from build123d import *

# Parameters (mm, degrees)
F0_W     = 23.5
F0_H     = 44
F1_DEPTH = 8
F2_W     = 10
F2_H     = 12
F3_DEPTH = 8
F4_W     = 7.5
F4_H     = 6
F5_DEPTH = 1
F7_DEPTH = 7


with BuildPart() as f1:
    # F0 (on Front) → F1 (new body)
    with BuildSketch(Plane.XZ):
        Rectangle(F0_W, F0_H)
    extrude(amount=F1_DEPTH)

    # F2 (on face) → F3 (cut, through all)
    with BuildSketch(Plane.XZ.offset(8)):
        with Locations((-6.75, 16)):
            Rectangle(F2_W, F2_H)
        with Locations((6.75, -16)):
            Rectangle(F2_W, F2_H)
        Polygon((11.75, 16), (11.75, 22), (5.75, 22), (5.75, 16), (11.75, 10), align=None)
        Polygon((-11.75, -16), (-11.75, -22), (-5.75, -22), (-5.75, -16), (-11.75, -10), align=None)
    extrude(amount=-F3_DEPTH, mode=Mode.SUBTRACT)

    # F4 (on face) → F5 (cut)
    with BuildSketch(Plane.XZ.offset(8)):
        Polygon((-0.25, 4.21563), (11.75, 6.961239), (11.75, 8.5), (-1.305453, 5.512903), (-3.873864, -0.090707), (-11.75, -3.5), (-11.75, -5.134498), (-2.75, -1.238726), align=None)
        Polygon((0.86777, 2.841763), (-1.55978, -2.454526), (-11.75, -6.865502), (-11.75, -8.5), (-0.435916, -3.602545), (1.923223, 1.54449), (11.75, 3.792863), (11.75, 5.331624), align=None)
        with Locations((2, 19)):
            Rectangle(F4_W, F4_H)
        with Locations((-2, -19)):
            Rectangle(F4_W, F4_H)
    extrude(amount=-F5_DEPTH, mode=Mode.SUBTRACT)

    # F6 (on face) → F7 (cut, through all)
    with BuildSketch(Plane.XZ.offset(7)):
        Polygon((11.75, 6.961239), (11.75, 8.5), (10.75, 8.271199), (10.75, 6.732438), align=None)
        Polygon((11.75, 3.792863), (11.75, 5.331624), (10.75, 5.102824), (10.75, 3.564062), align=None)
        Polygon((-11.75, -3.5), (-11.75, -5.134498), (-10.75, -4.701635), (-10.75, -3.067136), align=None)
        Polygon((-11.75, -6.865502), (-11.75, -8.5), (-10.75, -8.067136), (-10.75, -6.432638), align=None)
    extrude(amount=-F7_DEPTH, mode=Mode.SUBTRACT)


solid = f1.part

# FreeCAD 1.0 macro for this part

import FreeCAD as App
import Part
import Sketcher
Q = App.Units.Quantity


def add_polygon(sketch, points):
    """Adds a closed chain of lines whose ends are joined by coincident constraints."""
    first, n = sketch.GeometryCount, len(points)
    for a, b in zip(points, points[1:] + points[:1]):
        sketch.addGeometry(Part.LineSegment(App.Vector(*a, 0), App.Vector(*b, 0)), False)
    for i in range(n):
        sketch.addConstraint(Sketcher.Constraint("Coincident", first + i, 2, first + (i + 1) % n, 1))

doc = App.newDocument("Part")
body = doc.addObject("PartDesign::Body", "Body")

sketch1 = body.newObject("Sketcher::SketchObject", "Sketch")
sketch1.AttachmentSupport = (doc.getObject("XZ_Plane"), [""])
sketch1.MapMode = "FlatFace"
add_polygon(sketch1, [(-12, 22), (-12, -22), (12, -22), (12, 22)])
sketch1.addConstraint([
    Sketcher.Constraint("Vertical", 0),
    Sketcher.Constraint("Horizontal", 1),
    Sketcher.Constraint("Vertical", 2),
    Sketcher.Constraint("Horizontal", 3),
    Sketcher.Constraint("Symmetric", 0, 2, 2, 2, -1, 1),
    Sketcher.Constraint("DistanceY", 0, 2, 0, 1, Q("44 mm")),
    Sketcher.Constraint("DistanceX", 1, 1, 1, 2, Q("23.5 mm")),
])
pad1 = body.newObject("PartDesign::Pad", "Pad")
pad1.Profile = sketch1
pad1.Length = 8

sketch2 = body.newObject("Sketcher::SketchObject", "Sketch001")
sketch2.AttachmentSupport = (doc.getObject("XZ_Plane"), [""])
sketch2.MapMode = "FlatFace"
sketch2.AttachmentOffset = App.Placement(App.Vector(0, 0, 8), App.Rotation())
add_polygon(sketch2, [(-12, 22), (-12, 10), (-2, 10), (-2, 22)])
add_polygon(sketch2, [(2, -10), (2, -22), (12, -22), (12, -10)])
add_polygon(sketch2, [(12, 22), (6, 22), (6, 16), (12, 10)])
add_polygon(sketch2, [(-12, -22), (-6, -22), (-6, -16), (-12, -10)])
sketch2.addConstraint([
    Sketcher.Constraint("Vertical", 0),
    Sketcher.Constraint("Horizontal", 1),
    Sketcher.Constraint("Vertical", 2),
    Sketcher.Constraint("Horizontal", 3),
    Sketcher.Constraint("Vertical", 4),
    Sketcher.Constraint("Horizontal", 5),
    Sketcher.Constraint("Vertical", 6),
    Sketcher.Constraint("Horizontal", 7),
    Sketcher.Constraint("Horizontal", 8),
    Sketcher.Constraint("Vertical", 9),
    Sketcher.Constraint("Vertical", 11),
    Sketcher.Constraint("Horizontal", 12),
    Sketcher.Constraint("Vertical", 13),
    Sketcher.Constraint("Vertical", 15),
    Sketcher.Constraint("Symmetric", 2, 2, 4, 2, -1, 1),
    Sketcher.Constraint("Symmetric", 0, 2, 6, 2, -1, 1),
    Sketcher.Constraint("Symmetric", 8, 2, 12, 2, -1, 1),
    Sketcher.Constraint("Symmetric", 10, 2, 14, 2, -1, 1),
    Sketcher.Constraint("Symmetric", 0, 2, 10, 2, -2),
    Sketcher.Constraint("Parallel", 10, 14),
    Sketcher.Constraint("Horizontal", 3, 2, 8, 2),
    Sketcher.Constraint("Equal", 12, 9),
    Sketcher.Constraint("DistanceX", 1, 1, 1, 2, Q("10 mm")),
    Sketcher.Constraint("DistanceX", 8, 2, 8, 1, Q("6 mm")),
    Sketcher.Constraint("DistanceY", 0, 2, 0, 1, Q("12 mm")),
    Sketcher.Constraint("DistanceY", -1, 1, 0, 2, Q("10 mm")),
    Sketcher.Constraint("DistanceX", 1, 2, 4, 2, Q("3.5 mm")),
])
pocket1 = body.newObject("PartDesign::Pocket", "Pocket")
pocket1.Profile = sketch2
pocket1.Type = "ThroughAll"

sketch3 = body.newObject("Sketcher::SketchObject", "Sketch002")
sketch3.AttachmentSupport = (doc.getObject("XZ_Plane"), [""])
sketch3.MapMode = "FlatFace"
sketch3.AttachmentOffset = App.Placement(App.Vector(0, 0, 8), App.Rotation())
add_polygon(sketch3, [(-0.2, 4.2), (11.8, 7), (11.8, 8.5), (-1.3, 5.5), (-3.9, -0.1), (-11.8, -3.5), (-11.8, -5.1), (-2.8, -1.2)])
add_polygon(sketch3, [(0.9, 2.8), (-1.6, -2.5), (-11.8, -6.9), (-11.8, -8.5), (-0.4, -3.6), (1.9, 1.5), (11.8, 3.8), (11.8, 5.3)])
add_polygon(sketch3, [(-1.8, 22), (-1.8, 16), (5.8, 16), (5.8, 22)])
add_polygon(sketch3, [(-5.8, -16), (-5.8, -22), (1.8, -22), (1.8, -16)])
sketch3.addConstraint([
    Sketcher.Constraint("Vertical", 1),
    Sketcher.Constraint("Vertical", 5),
    Sketcher.Constraint("Vertical", 10),
    Sketcher.Constraint("Vertical", 14),
    Sketcher.Constraint("Vertical", 16),
    Sketcher.Constraint("Horizontal", 17),
    Sketcher.Constraint("Vertical", 18),
    Sketcher.Constraint("Horizontal", 19),
    Sketcher.Constraint("Vertical", 20),
    Sketcher.Constraint("Horizontal", 21),
    Sketcher.Constraint("Vertical", 22),
    Sketcher.Constraint("Horizontal", 23),
    Sketcher.Constraint("Symmetric", 1, 2, 10, 2, -1, 1),
    Sketcher.Constraint("Symmetric", 18, 2, 20, 2, -1, 1),
    Sketcher.Constraint("Symmetric", 16, 2, 22, 2, -1, 1),
    Sketcher.Constraint("Parallel", 0, 2),
    Sketcher.Constraint("Parallel", 4, 6),
    Sketcher.Constraint("Parallel", 3, 7),
    Sketcher.Constraint("Parallel", 7, 8),
    Sketcher.Constraint("Parallel", 6, 9),
    Sketcher.Constraint("Parallel", 9, 11),
    Sketcher.Constraint("Parallel", 8, 12),
    Sketcher.Constraint("Parallel", 2, 13),
    Sketcher.Constraint("Parallel", 13, 15),
    Sketcher.Constraint("Vertical", 5, 2, 9, 2),
    Sketcher.Constraint("Vertical", 1, 2, 13, 2),
    Sketcher.Constraint("Equal", 5, 10),
    Sketcher.Constraint("Equal", 1, 14),
    Sketcher.Constraint("DistanceY", 16, 2, 16, 1, Q("6 mm")),
    Sketcher.Constraint("Distance", 7, Q("6 mm")),
    Sketcher.Constraint("DistanceX", 17, 1, 17, 2, Q("7.5 mm")),
    Sketcher.Constraint("DistanceY", -1, 1, 16, 2, Q("16 mm")),
    Sketcher.Constraint("DistanceY", 4, 2, 1, 2, Q("12 mm")),
    Sketcher.Constraint("DistanceX", 4, 2, 6, 2, Q("9 mm")),
    Sketcher.Constraint("DistanceX", 7, 2, 0, 2, Q("12 mm")),
    Sketcher.Constraint("DistanceY", 10, 2, 4, 2, Q("5 mm")),
    Sketcher.Constraint("DistanceX", 17, 2, 1, 2, Q("6 mm")),
    Sketcher.Constraint("DistanceX", 4, 2, 0, 2, Q("23.5 mm")),
    Sketcher.Constraint("DistanceY", 1, 1, 1, 2, Q("1.538761 mm")),
    Sketcher.Constraint("DistanceY", 5, 2, 2, 2, Q("10.647401 mm")),
    Sketcher.Constraint("DistanceY", 5, 2, 1, 2, Q("13.634498 mm")),
    Sketcher.Constraint("DistanceY", 8, 2, 6, 2, Q("1.2158 mm")),
    Sketcher.Constraint("Distance", 2, Q("13.392819 mm")),
    Sketcher.Constraint("Distance", 8, Q("5.82612 mm")),
    Sketcher.Constraint("Distance", 13, Q("10.080711 mm")),
])
pocket2 = body.newObject("PartDesign::Pocket", "Pocket001")
pocket2.Profile = sketch3
pocket2.Length = 1

sketch4 = body.newObject("Sketcher::SketchObject", "Sketch003")
sketch4.AttachmentSupport = (doc.getObject("XZ_Plane"), [""])
sketch4.MapMode = "FlatFace"
sketch4.AttachmentOffset = App.Placement(App.Vector(0, 0, 7), App.Rotation())
add_polygon(sketch4, [(11.8, 7), (11.8, 8.5), (10.8, 8.3), (10.8, 6.7)])
add_polygon(sketch4, [(11.8, 3.8), (11.8, 5.3), (10.8, 5.1), (10.8, 3.6)])
add_polygon(sketch4, [(-11.8, -3.5), (-11.8, -5.1), (-10.8, -4.7), (-10.8, -3.1)])
add_polygon(sketch4, [(-11.8, -6.9), (-11.8, -8.5), (-10.8, -8.1), (-10.8, -6.4)])
sketch4.addConstraint([
    Sketcher.Constraint("Vertical", 0),
    Sketcher.Constraint("Vertical", 2),
    Sketcher.Constraint("Vertical", 4),
    Sketcher.Constraint("Vertical", 6),
    Sketcher.Constraint("Vertical", 8),
    Sketcher.Constraint("Vertical", 10),
    Sketcher.Constraint("Vertical", 12),
    Sketcher.Constraint("Vertical", 14),
    Sketcher.Constraint("Symmetric", 0, 2, 12, 2, -1, 1),
    Sketcher.Constraint("Parallel", 1, 3),
    Sketcher.Constraint("Parallel", 3, 5),
    Sketcher.Constraint("Parallel", 5, 7),
    Sketcher.Constraint("Parallel", 9, 11),
    Sketcher.Constraint("Parallel", 11, 13),
    Sketcher.Constraint("Parallel", 13, 15),
    Sketcher.Constraint("Vertical", 3, 2, 4, 2),
    Sketcher.Constraint("Vertical", 2, 2, 5, 2),
    Sketcher.Constraint("Vertical", 11, 2, 12, 2),
    Sketcher.Constraint("Vertical", 10, 2, 13, 2),
    Sketcher.Constraint("Equal", 2, 4),
    Sketcher.Constraint("Equal", 10, 12),
    Sketcher.Constraint("DistanceX", 1, 2, 0, 2, Q("1 mm")),
    Sketcher.Constraint("DistanceX", 8, 2, 9, 2, Q("1 mm")),
    Sketcher.Constraint("DistanceY", 12, 2, 11, 2, Q("5 mm")),
    Sketcher.Constraint("DistanceY", -1, 1, 0, 2, Q("8.5 mm")),
    Sketcher.Constraint("DistanceX", 8, 2, 6, 2, Q("22.5 mm")),
    Sketcher.Constraint("DistanceY", 10, 2, 7, 2, Q("6.859999 mm")),
    Sketcher.Constraint("DistanceY", 10, 1, 10, 2, Q("1.634499 mm")),
    Sketcher.Constraint("DistanceY", 0, 1, 0, 2, Q("1.538761 mm")),
    Sketcher.Constraint("DistanceY", -1, 1, 1, 2, Q("8.271199 mm")),
    Sketcher.Constraint("DistanceY", -1, 1, 6, 2, Q("3.564062 mm")),
])
pocket3 = body.newObject("PartDesign::Pocket", "Pocket002")
pocket3.Profile = sketch4
pocket3.Type = "ThroughAll"

doc.recompute()
